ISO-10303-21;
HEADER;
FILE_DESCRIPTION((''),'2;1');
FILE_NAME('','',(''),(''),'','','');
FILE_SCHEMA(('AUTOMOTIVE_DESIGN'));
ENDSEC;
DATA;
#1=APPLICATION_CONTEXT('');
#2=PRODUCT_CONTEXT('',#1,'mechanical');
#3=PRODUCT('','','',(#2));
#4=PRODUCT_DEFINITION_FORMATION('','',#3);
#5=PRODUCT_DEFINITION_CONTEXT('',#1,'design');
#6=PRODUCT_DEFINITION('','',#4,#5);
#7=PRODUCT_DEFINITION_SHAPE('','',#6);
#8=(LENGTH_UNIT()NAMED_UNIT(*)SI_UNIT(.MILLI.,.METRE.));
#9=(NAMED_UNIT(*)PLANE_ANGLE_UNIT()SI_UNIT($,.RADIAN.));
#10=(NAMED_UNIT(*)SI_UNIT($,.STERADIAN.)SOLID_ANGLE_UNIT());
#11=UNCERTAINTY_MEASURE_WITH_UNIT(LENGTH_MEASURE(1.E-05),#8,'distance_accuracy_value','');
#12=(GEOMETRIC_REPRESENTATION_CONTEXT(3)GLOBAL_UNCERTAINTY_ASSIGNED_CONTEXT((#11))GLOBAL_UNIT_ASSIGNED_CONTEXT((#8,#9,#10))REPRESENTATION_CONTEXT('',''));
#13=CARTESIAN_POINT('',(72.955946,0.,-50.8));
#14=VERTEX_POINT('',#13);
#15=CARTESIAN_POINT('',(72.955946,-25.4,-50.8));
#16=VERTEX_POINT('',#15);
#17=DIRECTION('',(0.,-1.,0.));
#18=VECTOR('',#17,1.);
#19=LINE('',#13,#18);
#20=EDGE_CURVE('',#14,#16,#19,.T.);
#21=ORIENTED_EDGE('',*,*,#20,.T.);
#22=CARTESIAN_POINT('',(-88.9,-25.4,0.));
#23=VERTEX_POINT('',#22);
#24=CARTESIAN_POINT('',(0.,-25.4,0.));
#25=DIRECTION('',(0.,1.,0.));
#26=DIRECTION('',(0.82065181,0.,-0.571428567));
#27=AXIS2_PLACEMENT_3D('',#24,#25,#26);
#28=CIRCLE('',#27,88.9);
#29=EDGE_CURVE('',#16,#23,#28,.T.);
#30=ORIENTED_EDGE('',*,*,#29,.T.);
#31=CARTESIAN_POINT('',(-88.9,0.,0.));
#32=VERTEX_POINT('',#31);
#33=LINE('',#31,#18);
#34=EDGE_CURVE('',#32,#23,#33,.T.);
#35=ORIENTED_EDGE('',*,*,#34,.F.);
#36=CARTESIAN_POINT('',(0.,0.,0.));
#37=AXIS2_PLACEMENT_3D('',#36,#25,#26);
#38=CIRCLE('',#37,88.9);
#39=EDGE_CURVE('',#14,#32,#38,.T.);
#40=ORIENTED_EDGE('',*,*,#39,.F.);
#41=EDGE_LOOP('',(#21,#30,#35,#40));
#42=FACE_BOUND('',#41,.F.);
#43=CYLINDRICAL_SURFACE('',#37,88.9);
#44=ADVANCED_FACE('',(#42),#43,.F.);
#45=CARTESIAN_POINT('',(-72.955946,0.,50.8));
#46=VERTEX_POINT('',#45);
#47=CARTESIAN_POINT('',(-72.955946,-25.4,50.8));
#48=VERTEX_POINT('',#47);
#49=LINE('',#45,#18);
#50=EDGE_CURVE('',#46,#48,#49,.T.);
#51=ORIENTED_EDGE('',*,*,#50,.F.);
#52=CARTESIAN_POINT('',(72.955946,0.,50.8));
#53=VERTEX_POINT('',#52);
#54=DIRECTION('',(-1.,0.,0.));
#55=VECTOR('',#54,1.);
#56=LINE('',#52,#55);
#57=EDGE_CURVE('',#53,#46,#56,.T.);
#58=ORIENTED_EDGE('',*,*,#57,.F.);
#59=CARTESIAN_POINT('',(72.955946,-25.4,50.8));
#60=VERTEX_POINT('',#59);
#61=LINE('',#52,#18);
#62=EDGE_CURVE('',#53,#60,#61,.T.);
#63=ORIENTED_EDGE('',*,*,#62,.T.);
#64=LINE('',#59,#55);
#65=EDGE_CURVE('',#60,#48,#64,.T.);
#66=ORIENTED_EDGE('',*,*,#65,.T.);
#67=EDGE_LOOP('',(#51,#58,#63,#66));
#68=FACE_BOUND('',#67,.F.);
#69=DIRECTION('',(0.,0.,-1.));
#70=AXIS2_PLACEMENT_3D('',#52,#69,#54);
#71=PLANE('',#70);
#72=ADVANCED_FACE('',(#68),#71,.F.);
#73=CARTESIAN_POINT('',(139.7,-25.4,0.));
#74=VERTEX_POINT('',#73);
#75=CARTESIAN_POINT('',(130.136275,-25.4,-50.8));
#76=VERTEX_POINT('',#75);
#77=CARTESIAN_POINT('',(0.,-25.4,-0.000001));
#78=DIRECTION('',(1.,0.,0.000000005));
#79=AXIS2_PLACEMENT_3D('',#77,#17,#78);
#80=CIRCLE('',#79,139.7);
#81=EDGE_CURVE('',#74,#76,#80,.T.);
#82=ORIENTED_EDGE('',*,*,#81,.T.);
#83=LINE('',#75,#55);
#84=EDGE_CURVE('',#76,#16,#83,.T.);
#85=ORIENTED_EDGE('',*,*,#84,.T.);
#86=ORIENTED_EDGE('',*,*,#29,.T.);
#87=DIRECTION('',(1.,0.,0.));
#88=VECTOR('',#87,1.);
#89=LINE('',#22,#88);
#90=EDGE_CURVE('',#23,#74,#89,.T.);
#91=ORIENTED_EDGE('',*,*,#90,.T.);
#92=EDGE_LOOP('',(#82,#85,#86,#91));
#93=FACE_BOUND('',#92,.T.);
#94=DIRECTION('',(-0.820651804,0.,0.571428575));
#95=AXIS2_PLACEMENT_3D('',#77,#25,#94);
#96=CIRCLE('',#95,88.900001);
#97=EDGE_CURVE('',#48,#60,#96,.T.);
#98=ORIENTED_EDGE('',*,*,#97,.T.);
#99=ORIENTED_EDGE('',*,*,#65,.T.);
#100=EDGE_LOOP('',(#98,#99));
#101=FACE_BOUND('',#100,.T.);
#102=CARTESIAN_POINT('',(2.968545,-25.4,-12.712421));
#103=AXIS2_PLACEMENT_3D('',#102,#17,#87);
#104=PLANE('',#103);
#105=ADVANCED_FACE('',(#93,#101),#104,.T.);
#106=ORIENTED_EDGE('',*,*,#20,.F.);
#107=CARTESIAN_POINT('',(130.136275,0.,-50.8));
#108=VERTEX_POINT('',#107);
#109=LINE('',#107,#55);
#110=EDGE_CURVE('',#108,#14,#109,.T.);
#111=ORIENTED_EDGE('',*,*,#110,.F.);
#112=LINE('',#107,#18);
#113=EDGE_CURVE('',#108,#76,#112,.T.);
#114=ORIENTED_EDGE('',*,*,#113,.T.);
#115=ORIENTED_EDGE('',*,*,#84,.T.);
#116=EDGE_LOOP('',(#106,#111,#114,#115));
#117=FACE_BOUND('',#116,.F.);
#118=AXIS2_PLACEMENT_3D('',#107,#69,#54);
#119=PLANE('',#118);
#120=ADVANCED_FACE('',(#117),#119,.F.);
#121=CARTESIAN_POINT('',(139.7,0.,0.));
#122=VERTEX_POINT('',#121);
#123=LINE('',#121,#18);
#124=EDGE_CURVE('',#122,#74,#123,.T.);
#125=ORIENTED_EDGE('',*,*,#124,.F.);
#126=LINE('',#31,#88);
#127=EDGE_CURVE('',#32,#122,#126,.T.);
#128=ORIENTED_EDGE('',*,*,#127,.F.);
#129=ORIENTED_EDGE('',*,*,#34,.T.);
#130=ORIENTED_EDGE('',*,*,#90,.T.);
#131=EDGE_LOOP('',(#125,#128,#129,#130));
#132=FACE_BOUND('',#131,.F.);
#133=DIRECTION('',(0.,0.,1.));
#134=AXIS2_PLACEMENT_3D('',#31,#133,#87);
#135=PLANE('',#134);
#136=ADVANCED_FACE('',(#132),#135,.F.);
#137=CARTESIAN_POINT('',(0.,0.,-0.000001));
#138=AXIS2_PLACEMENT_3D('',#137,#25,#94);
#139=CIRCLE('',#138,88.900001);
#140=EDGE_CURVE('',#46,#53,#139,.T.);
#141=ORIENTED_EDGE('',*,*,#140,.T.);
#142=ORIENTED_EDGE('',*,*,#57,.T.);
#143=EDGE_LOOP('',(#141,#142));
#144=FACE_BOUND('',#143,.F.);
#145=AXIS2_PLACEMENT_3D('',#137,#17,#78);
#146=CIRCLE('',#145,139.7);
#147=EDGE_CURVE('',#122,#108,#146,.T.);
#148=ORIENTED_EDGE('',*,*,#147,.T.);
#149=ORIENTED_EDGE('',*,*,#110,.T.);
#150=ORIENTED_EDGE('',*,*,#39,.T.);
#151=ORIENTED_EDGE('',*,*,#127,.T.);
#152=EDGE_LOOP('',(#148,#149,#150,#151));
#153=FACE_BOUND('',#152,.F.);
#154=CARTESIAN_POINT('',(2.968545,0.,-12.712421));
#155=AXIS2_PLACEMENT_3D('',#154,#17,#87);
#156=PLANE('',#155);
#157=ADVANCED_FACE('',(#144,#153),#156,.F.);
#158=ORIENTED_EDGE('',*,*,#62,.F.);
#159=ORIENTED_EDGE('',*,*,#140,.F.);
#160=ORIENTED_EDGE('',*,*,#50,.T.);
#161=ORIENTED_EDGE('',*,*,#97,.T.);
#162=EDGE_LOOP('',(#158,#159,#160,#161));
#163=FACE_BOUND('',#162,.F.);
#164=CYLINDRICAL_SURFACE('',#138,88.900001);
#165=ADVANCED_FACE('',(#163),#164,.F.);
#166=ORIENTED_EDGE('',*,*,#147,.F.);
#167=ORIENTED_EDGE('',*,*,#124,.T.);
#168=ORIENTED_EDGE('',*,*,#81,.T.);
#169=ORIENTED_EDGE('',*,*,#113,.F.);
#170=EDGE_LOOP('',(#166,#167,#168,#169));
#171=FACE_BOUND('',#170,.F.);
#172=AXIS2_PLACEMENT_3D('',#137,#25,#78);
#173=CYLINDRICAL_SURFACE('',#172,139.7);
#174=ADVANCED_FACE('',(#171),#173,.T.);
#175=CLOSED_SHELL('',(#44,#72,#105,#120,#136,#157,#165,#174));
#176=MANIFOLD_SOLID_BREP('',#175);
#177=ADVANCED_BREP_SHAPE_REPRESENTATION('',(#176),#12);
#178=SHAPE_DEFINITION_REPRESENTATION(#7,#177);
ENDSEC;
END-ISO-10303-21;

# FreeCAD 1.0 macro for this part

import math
import FreeCAD as App
import Part
import Sketcher

V = App.Vector
Q = App.Units.Quantity

doc = App.newDocument("Part")
body = doc.addObject("PartDesign::Body", "Body")

# Sketch on XZ plane
sketch1 = body.newObject("Sketcher::SketchObject", "Sketch")
sketch1.AttachmentSupport = (doc.getObject("XZ_Plane"), [""])
sketch1.MapMode = "FlatFace"
sketch1.addGeometry(Part.ArcOfCircle(Part.Circle(V(0, 0, 0), V(0, 0, 1), 140), math.radians(0), math.radians(339)), False)
sketch1.addGeometry(Part.LineSegment(V(130, -51, 0), V(73, -51, 0)), False)
sketch1.addGeometry(Part.ArcOfCircle(Part.Circle(V(0, 0, 0), V(0, 0, 1), 89), math.radians(180), math.radians(325)), False)
sketch1.addGeometry(Part.LineSegment(V(-89, 0, 0), V(140, 0, 0)), False)
sketch1.addGeometry(Part.LineSegment(V(73, 51, 0), V(-73, 51, 0)), False)
sketch1.addGeometry(Part.ArcOfCircle(Part.Circle(V(0, 0, 0), V(0, 0, 1), 89), math.radians(35), math.radians(145)), False)
sketch1.addConstraint(Sketcher.Constraint("Coincident", 0, 2, 1, 1))
sketch1.addConstraint(Sketcher.Constraint("Coincident", 1, 2, 2, 2))
sketch1.addConstraint(Sketcher.Constraint("Coincident", 2, 1, 3, 1))
sketch1.addConstraint(Sketcher.Constraint("Coincident", 3, 2, 0, 1))
sketch1.addConstraint(Sketcher.Constraint("Coincident", 4, 1, 5, 1))
sketch1.addConstraint(Sketcher.Constraint("Coincident", 5, 2, 4, 2))
sketch1.addConstraint(Sketcher.Constraint("Horizontal", 1))
sketch1.addConstraint(Sketcher.Constraint("Horizontal", 3))
sketch1.addConstraint(Sketcher.Constraint("Horizontal", 4))
sketch1.addConstraint(Sketcher.Constraint("Coincident", 0, 3, -1, 1))
sketch1.addConstraint(Sketcher.Constraint("Coincident", 2, 3, -1, 1))
sketch1.addConstraint(Sketcher.Constraint("Coincident", 5, 3, -1, 1))
sketch1.addConstraint(Sketcher.Constraint("Equal", 2, 5))
sketch1.addConstraint(Sketcher.Constraint("PointOnObject", 2, 1, -1))
sketch1.addConstraint(Sketcher.Constraint("Vertical", 1, 2, 4, 1))
sketch1.addConstraint(Sketcher.Constraint("Radius", 0, Q("5.5 in")))
sketch1.addConstraint(Sketcher.Constraint("Radius", 2, Q("3.5 in")))
sketch1.addConstraint(Sketcher.Constraint("DistanceY", 0, 2, -1, 1, Q("2 in")))
pad1 = body.newObject("PartDesign::Pad", "Pad")
pad1.Profile = sketch1
pad1.Length = Q("1 in")

doc.recompute()
